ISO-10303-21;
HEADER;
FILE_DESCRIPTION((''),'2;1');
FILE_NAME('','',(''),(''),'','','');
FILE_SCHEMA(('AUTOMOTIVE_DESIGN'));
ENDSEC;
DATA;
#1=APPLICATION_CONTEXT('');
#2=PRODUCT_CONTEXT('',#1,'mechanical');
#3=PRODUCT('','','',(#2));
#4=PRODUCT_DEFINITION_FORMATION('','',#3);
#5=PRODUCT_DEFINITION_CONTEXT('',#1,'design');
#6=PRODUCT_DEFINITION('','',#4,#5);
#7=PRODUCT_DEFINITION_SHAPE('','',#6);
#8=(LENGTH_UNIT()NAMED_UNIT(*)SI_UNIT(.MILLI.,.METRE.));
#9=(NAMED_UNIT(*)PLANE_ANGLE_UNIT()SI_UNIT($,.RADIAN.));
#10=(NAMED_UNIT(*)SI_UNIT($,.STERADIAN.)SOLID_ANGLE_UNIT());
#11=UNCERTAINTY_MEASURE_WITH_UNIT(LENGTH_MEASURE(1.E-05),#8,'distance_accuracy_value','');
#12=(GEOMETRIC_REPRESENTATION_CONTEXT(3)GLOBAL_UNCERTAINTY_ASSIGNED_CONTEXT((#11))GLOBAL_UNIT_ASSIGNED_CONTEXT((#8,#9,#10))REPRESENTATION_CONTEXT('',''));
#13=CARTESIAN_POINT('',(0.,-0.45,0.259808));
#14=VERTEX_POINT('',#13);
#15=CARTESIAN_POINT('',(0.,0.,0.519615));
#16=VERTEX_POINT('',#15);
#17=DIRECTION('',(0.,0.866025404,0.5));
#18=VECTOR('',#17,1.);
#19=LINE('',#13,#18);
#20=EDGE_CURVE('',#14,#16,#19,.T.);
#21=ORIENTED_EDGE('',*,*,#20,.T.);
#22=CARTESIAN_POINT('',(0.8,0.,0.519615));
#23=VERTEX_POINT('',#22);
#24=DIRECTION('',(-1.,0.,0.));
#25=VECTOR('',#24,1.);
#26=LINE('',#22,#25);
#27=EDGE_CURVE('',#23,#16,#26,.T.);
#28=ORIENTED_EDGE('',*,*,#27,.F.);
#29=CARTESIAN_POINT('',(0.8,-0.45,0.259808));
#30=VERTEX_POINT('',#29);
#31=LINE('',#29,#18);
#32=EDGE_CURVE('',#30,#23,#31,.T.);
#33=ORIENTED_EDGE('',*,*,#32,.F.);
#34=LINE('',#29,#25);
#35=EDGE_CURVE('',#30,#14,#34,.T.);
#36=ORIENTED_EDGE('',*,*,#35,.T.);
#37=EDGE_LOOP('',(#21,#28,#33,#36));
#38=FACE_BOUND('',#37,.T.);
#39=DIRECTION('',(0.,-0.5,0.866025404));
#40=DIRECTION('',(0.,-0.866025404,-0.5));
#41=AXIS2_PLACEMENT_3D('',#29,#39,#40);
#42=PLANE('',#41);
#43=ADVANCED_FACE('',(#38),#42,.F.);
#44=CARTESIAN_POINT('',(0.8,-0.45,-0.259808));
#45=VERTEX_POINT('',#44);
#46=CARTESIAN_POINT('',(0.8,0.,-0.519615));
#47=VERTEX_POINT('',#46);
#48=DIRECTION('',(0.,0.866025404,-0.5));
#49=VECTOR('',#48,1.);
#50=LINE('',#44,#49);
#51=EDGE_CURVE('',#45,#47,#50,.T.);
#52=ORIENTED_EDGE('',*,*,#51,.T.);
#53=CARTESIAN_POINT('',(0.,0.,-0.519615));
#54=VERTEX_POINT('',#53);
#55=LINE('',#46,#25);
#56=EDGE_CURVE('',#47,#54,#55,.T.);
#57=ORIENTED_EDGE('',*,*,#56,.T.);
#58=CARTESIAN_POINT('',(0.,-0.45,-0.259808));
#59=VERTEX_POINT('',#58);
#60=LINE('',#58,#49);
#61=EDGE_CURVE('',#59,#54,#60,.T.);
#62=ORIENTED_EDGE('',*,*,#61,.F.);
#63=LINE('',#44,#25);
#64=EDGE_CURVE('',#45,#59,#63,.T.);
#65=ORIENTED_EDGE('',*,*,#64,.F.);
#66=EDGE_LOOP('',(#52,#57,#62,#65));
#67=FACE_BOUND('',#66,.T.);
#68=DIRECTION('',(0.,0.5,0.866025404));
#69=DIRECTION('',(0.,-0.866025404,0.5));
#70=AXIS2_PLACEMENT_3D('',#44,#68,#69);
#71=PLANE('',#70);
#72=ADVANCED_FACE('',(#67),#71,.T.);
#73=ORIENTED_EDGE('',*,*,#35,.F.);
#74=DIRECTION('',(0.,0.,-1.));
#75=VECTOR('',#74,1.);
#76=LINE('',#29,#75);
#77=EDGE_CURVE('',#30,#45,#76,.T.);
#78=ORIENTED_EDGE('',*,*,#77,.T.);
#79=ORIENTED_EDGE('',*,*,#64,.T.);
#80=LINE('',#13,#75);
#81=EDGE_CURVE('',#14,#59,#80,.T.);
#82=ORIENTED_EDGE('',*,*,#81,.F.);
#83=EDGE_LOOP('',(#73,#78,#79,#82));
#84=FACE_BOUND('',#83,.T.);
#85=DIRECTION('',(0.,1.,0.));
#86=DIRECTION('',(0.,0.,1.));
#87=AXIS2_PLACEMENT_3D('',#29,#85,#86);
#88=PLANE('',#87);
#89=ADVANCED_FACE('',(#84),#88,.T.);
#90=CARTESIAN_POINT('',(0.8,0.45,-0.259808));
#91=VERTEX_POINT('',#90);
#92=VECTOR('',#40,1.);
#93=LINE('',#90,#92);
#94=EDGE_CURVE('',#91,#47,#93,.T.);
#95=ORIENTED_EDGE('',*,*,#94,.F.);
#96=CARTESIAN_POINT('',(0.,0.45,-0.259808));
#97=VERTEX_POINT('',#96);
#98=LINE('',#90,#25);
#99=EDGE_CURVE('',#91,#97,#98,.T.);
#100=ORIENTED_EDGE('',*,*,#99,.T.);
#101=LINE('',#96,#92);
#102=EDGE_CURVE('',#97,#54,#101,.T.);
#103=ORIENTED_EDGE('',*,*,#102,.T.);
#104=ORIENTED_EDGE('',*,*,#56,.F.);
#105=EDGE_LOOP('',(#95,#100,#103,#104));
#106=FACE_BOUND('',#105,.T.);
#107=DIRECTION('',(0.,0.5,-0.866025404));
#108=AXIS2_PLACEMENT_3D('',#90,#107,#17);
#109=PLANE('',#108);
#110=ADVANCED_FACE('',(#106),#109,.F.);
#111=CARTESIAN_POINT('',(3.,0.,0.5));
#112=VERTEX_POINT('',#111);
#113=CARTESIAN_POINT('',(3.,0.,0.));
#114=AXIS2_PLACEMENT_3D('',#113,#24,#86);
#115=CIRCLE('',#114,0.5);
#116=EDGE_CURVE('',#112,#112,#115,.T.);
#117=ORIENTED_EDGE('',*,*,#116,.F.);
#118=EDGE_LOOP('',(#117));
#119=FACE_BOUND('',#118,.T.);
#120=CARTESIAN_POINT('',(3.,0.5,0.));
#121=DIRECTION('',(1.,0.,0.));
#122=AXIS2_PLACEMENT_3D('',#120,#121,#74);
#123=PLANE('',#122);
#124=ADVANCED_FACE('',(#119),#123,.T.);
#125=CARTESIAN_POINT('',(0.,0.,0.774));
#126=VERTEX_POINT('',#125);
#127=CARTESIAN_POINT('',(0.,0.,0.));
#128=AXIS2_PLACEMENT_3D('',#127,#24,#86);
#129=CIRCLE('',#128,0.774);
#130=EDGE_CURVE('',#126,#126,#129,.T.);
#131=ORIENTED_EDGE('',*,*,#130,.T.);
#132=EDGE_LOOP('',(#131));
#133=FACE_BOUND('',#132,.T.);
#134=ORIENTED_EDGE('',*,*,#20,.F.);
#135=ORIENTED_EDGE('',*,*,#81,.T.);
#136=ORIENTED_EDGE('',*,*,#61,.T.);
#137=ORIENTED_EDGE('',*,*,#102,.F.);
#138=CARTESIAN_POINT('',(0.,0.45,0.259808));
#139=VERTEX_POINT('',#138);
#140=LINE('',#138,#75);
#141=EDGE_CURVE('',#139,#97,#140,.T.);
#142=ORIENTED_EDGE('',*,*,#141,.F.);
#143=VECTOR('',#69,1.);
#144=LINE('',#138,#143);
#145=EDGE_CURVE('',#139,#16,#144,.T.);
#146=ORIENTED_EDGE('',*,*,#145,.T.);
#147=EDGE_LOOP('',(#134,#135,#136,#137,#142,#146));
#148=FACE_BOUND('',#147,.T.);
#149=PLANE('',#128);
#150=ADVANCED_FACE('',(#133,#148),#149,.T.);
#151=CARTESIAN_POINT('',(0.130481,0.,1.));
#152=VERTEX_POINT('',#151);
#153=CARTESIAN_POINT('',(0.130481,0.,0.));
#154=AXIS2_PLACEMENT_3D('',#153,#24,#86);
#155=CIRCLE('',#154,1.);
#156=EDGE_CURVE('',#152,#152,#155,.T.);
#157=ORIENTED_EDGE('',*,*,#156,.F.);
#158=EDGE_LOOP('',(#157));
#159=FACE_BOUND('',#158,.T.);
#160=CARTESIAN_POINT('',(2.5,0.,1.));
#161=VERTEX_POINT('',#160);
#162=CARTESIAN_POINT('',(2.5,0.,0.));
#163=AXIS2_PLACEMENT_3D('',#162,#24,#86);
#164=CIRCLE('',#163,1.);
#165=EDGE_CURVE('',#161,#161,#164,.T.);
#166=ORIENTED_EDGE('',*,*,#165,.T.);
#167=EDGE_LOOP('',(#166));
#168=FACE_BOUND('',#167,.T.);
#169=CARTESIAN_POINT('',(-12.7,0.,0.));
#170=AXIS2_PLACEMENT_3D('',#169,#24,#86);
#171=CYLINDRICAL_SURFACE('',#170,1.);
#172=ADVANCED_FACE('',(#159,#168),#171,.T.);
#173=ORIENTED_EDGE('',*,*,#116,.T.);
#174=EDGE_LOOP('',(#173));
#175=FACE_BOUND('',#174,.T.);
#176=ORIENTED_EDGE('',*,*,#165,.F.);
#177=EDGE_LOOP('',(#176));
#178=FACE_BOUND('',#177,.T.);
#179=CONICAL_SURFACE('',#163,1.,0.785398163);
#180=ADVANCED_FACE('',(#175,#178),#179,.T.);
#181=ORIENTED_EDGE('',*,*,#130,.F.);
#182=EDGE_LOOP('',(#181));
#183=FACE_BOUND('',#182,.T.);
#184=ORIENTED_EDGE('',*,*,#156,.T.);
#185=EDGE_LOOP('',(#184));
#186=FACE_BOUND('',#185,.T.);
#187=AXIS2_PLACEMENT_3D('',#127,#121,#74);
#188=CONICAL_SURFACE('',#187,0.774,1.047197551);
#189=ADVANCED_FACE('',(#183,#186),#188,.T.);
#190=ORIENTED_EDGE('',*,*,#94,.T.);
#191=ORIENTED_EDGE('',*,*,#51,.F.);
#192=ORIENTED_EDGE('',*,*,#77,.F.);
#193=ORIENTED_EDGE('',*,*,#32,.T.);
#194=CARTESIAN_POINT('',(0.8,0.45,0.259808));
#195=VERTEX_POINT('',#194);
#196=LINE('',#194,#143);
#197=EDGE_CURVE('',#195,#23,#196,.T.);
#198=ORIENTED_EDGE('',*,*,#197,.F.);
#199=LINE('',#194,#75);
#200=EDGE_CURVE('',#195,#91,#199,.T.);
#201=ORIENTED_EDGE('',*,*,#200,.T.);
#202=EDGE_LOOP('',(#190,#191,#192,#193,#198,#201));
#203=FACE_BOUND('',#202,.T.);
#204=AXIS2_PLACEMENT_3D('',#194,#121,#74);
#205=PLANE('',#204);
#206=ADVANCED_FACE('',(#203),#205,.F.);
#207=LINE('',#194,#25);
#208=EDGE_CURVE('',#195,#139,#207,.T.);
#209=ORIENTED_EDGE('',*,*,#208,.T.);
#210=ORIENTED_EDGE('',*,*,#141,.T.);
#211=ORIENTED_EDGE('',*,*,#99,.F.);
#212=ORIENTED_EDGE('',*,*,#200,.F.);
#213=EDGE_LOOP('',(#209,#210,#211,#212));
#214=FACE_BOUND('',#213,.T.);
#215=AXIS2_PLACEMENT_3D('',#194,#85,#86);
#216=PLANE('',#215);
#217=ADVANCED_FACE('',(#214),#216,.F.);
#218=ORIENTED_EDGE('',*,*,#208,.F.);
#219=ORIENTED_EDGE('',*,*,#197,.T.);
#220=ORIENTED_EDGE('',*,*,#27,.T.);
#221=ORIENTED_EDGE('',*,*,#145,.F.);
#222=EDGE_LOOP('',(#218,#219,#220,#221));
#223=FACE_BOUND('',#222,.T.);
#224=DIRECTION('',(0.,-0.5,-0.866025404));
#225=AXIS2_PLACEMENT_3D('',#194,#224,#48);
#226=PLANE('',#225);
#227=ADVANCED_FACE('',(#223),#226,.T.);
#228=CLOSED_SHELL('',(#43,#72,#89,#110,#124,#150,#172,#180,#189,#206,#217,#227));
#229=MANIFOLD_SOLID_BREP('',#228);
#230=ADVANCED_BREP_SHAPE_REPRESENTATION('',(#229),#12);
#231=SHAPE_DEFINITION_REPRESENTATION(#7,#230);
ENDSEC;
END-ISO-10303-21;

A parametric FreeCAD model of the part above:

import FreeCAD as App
import Part
import Sketcher
from FreeCAD import Vector
Q = App.Units.Quantity


def add_polygon(sketch, points):
    """Adds a closed chain of lines whose ends are joined by coincident constraints."""
    first, n = sketch.GeometryCount, len(points)
    for a, b in zip(points, points[1:] + points[:1]):
        sketch.addGeometry(Part.LineSegment(App.Vector(*a, 0), App.Vector(*b, 0)), False)
    for i in range(n):
        sketch.addConstraint(Sketcher.Constraint("Coincident", first + i, 2, first + (i + 1) % n, 1))

doc = App.newDocument("Part")
params = doc.addObject("Spreadsheet::Sheet", "Params")
for row, (alias, value) in enumerate([
    ("sketch1_width", "3 mm"),
    ("sketch1_height", "0.5 mm"),
    ("revolution_angle", "360 deg"),
    ("pocket1_length", "0.8 mm"),
], start=1):
    params.set(f"A{row}", alias)
    params.set(f"B{row}", "=" + value)
    params.setAlias(f"B{row}", alias)

body = doc.addObject("PartDesign::Body", "Body")

# Sketch on XY plane
sketch1 = doc.addObject("Sketcher::SketchObject", "Sketch")
body.addObject(sketch1)
sketch1.AttachmentSupport = (doc.XY_Plane, [""])
sketch1.MapMode = "FlatFace"
add_polygon(sketch1, [(0, 0.77), (0, 0), (3, 0), (3, 0.5), (2.5, 1), (0.13, 1)])  # lines 0-5
sketch1.addConstraint(Sketcher.Constraint("Vertical", 0))
sketch1.addConstraint(Sketcher.Constraint("Horizontal", 1))
sketch1.addConstraint(Sketcher.Constraint("Vertical", 2))
sketch1.addConstraint(Sketcher.Constraint("Horizontal", 4))
sketch1.addConstraint(Sketcher.Constraint("Coincident", 0, 2, -1, 1))
sketch1.addConstraint(Sketcher.Constraint("DistanceX", 1, 1, 1, 2, Q("3 mm")))
sketch1.addConstraint(Sketcher.Constraint("Angle", 3, Q("135 deg")))
sketch1.addConstraint(Sketcher.Constraint("Angle", 5, Q("-120 deg")))
sketch1.addConstraint(Sketcher.Constraint("DistanceY", 2, 1, 2, 2, Q("0.5 mm")))
sketch1.addConstraint(Sketcher.Constraint("DistanceY", -1, 1, 3, 2, Q("1 mm")))
sketch1.addConstraint(Sketcher.Constraint("DistanceY", 0, 2, 0, 1, Q("0.774 mm")))
sketch1.setExpression("Constraints[11]", "Params.sketch1_width")
sketch1.setExpression("Constraints[14]", "Params.sketch1_height")
revolution = doc.addObject("PartDesign::Revolution", "Revolution")
body.addObject(revolution)
revolution.Profile = sketch1
revolution.ReferenceAxis = (sketch1, ["H_Axis"])
revolution.setExpression("Angle", "Params.revolution_angle")

# Sketch on YZ plane
sketch2 = doc.addObject("Sketcher::SketchObject", "Sketch001")
body.addObject(sketch2)
sketch2.AttachmentSupport = (doc.YZ_Plane, [""])
sketch2.MapMode = "FlatFace"
add_polygon(sketch2, [(0.5, 0.3), (0.5, -0.3), (0, -0.5), (-0.5, -0.3), (-0.5, 0.3), (0, 0.5)])  # lines 0-5
sketch2.addConstraint(Sketcher.Constraint("Vertical", 0))
sketch2.addConstraint(Sketcher.Constraint("Vertical", 3))
sketch2.addConstraint(Sketcher.Constraint("Symmetric", 0, 2, 3, 2, -1, 1))
sketch2.addConstraint(Sketcher.Constraint("Symmetric", 1, 2, 4, 2, -1, 1))
sketch2.addConstraint(Sketcher.Constraint("PointOnObject", 1, 2, -2))
sketch2.addConstraint(Sketcher.Constraint("Parallel", 2, 5))
sketch2.addConstraint(Sketcher.Constraint("Horizontal", 0, 2, 2, 2))
sketch2.addConstraint(Sketcher.Constraint("Angle", 1, Q("-150 deg")))
sketch2.addConstraint(Sketcher.Constraint("DistanceX", 2, 2, 0, 2, Q("0.9 mm")))
sketch2.addConstraint(Sketcher.Constraint("DistanceY", 0, 2, 0, 1, Q("0.519615 mm")))
pocket1 = doc.addObject("PartDesign::Pocket", "Pocket")
body.addObject(pocket1)
pocket1.Profile = sketch2
pocket1.setExpression("Length", "Params.pocket1_length")
pocket1.Reversed = True

doc.recompute()
